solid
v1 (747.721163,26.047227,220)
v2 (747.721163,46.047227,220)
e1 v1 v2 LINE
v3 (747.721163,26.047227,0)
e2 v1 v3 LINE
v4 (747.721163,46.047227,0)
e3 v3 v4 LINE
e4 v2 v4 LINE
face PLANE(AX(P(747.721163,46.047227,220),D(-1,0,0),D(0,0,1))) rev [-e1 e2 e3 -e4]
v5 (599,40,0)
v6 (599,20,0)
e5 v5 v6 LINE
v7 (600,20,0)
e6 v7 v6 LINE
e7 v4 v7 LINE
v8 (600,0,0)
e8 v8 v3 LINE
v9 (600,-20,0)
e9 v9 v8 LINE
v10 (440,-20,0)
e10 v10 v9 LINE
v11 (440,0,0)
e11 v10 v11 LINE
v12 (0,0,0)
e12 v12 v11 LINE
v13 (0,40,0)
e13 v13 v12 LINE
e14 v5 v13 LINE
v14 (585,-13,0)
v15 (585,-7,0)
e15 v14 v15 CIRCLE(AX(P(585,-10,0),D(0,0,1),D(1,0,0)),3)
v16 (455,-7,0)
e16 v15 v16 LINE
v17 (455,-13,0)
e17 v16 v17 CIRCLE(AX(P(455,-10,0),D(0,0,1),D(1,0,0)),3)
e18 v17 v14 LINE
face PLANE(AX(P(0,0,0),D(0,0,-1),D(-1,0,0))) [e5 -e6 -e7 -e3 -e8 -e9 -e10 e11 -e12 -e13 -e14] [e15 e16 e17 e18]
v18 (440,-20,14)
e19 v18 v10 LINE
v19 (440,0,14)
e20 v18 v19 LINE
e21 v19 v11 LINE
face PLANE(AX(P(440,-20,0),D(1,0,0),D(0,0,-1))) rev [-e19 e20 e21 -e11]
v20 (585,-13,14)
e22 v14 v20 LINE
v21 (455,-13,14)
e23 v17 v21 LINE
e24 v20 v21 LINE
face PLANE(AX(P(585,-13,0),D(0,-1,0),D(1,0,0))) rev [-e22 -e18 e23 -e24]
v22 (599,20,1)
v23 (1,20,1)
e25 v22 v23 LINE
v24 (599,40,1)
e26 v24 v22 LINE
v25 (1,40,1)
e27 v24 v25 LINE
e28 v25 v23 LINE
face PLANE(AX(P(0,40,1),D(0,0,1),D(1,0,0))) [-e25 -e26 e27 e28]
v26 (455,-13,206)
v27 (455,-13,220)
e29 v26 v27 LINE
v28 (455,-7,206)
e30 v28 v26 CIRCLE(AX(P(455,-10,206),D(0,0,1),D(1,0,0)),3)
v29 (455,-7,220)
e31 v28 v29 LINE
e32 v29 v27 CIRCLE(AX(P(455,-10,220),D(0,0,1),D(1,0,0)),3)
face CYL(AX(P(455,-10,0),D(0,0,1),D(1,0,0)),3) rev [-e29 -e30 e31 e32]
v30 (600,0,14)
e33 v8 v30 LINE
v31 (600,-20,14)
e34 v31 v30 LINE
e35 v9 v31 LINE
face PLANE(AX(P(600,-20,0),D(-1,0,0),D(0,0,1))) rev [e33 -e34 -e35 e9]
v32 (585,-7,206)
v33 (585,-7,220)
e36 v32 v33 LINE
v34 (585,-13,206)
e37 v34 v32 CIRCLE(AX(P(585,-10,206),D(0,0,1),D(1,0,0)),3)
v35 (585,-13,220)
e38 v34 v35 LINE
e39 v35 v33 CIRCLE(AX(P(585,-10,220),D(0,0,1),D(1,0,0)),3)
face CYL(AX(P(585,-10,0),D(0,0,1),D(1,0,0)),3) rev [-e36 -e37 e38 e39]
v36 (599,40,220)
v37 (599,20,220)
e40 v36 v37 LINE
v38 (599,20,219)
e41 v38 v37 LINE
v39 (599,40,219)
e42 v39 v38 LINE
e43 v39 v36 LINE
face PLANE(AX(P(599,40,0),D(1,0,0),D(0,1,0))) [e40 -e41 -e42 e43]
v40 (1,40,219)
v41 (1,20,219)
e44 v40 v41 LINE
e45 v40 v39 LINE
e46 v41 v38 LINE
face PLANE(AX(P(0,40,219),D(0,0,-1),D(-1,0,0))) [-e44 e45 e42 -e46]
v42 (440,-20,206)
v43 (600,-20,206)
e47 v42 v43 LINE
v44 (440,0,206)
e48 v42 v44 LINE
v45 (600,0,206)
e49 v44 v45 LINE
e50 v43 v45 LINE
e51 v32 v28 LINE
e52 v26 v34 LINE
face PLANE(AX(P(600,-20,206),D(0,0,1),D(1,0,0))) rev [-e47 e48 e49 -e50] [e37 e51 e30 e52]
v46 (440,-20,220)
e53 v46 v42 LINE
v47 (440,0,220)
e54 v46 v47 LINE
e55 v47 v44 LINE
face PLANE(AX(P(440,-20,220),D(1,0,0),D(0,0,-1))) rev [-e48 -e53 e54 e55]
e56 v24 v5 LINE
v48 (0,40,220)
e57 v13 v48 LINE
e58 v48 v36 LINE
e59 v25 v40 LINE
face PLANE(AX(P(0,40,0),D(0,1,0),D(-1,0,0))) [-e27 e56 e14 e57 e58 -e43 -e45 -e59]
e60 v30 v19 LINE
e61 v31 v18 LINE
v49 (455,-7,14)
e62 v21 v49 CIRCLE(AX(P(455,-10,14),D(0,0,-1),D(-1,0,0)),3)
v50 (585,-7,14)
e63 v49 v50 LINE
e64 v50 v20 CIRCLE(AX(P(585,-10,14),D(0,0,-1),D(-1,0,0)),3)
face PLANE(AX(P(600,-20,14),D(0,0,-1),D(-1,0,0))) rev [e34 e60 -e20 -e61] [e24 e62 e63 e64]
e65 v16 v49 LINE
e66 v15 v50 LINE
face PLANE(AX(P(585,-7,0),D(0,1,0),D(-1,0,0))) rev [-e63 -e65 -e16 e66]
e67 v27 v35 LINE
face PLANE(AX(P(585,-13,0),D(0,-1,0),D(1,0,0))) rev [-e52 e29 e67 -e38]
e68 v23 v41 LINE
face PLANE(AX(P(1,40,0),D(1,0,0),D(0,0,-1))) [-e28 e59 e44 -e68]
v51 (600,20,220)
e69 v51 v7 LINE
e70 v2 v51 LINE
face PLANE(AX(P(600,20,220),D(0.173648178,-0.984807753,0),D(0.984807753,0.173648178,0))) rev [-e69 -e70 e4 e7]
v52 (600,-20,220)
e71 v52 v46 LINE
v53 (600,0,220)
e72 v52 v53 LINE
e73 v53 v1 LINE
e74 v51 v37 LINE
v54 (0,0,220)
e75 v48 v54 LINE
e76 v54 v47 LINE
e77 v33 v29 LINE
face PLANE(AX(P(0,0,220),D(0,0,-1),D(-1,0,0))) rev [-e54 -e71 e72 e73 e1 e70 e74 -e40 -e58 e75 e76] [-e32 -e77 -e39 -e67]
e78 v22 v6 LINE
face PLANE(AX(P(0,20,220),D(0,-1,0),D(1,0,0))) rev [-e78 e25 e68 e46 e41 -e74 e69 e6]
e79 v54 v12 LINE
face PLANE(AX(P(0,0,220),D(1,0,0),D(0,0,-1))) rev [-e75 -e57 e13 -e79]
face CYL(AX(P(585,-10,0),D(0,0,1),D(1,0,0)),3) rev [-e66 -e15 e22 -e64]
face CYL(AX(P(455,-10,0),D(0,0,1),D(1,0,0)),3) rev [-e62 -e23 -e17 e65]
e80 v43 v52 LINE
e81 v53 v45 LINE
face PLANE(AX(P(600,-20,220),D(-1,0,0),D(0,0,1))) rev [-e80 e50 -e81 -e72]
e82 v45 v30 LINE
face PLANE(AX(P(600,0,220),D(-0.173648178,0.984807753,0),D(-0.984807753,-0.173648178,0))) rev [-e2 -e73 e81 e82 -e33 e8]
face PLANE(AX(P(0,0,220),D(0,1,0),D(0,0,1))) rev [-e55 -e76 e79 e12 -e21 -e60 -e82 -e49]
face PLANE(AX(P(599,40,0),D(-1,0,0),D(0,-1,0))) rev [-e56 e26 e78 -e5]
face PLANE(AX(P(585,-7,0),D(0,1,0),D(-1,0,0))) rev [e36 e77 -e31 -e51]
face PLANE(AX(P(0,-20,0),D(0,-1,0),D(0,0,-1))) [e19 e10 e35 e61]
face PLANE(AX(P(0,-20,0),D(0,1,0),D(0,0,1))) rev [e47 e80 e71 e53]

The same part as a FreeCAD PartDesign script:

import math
import FreeCAD as App
import Part
import Sketcher
from FreeCAD import Vector
Q = App.Units.Quantity


def add_polygon(sketch, points):
    """Adds a closed chain of lines whose ends are joined by coincident constraints."""
    first, n = sketch.GeometryCount, len(points)
    for a, b in zip(points, points[1:] + points[:1]):
        sketch.addGeometry(Part.LineSegment(App.Vector(*a, 0), App.Vector(*b, 0)), False)
    for i in range(n):
        sketch.addConstraint(Sketcher.Constraint("Coincident", first + i, 2, first + (i + 1) % n, 1))

doc = App.newDocument("Part")
body = doc.addObject("PartDesign::Body", "Body")

# Sketch on XY plane
sketch1 = doc.addObject("Sketcher::SketchObject", "Sketch")
body.addObject(sketch1)
sketch1.AttachmentSupport = (doc.XY_Plane, [""])
sketch1.MapMode = "FlatFace"
add_polygon(sketch1, [(600, 0), (748, 26), (748, 46), (600, 20), (0, 20), (0, 0)])  # lines 0-5
sketch1.addConstraint([
    Sketcher.Constraint("Vertical", 1),
    Sketcher.Constraint("Horizontal", 3),
    Sketcher.Constraint("Vertical", 4),
    Sketcher.Constraint("Horizontal", 5),
    Sketcher.Constraint("Coincident", 4, 2, -1, 1),
    Sketcher.Constraint("Parallel", 0, 2),
    Sketcher.Constraint("Vertical", 2, 2, 5, 2),
    Sketcher.Constraint("DistanceX", 3, 2, 3, 1, 600.0),
    Sketcher.Constraint("DistanceY", 1, 1, 1, 2, 20.0),
    Sketcher.Constraint("Angle", 0, Q("10 deg")),
    Sketcher.Constraint("Distance", 0, 150.0),
])
pad1 = doc.addObject("PartDesign::Pad", "Pad")
body.addObject(pad1)
pad1.Profile = sketch1
pad1.Length = 220

# Sketch on XZ plane
sketch2 = doc.addObject("Sketcher::SketchObject", "Sketch001")
body.addObject(sketch2)
sketch2.AttachmentSupport = (doc.XZ_Plane, [""])
sketch2.MapMode = "FlatFace"
sketch2.AttachmentOffset = App.Placement(Vector(0, 0, -20), App.Rotation())
add_polygon(sketch2, [(1, 1), (599, 1), (599, 0), (0, 0), (0, 220), (599, 220), (599, 219), (1, 219)])  # lines 0-7
sketch2.addConstraint([
    Sketcher.Constraint("Horizontal", 0),
    Sketcher.Constraint("Vertical", 1),
    Sketcher.Constraint("Horizontal", 2),
    Sketcher.Constraint("Vertical", 3),
    Sketcher.Constraint("Horizontal", 4),
    Sketcher.Constraint("Vertical", 5),
    Sketcher.Constraint("Horizontal", 6),
    Sketcher.Constraint("Vertical", 7),
    Sketcher.Constraint("Coincident", 2, 2, -1, 1),
    Sketcher.Constraint("Vertical", 1, 2, 4, 2),
    Sketcher.Constraint("Equal", 1, 5),
    Sketcher.Constraint("DistanceX", 0, 1, 0, 2, 598.0),
    Sketcher.Constraint("DistanceX", 2, 2, 2, 1, 599.0),
    Sketcher.Constraint("DistanceY", 1, 2, 1, 1, 1.0),
    Sketcher.Constraint("DistanceY", 3, 1, 3, 2, 220.0),
])
pad2 = doc.addObject("PartDesign::Pad", "Pad001")
body.addObject(pad2)
pad2.Profile = sketch2
pad2.Length = 20
pad2.Reversed = True

# Sketch on XZ plane
sketch3 = doc.addObject("Sketcher::SketchObject", "Sketch002")
body.addObject(sketch3)
sketch3.AttachmentSupport = (doc.XZ_Plane, [""])
sketch3.MapMode = "FlatFace"
add_polygon(sketch3, [(440, 220), (440, 206), (600, 206), (600, 220)])  # lines 0-3
add_polygon(sketch3, [(440, 14), (440, 0), (600, 0), (600, 14)])  # lines 4-7
sketch3.addConstraint([
    Sketcher.Constraint("Vertical", 0),
    Sketcher.Constraint("Horizontal", 1),
    Sketcher.Constraint("Vertical", 2),
    Sketcher.Constraint("Horizontal", 3),
    Sketcher.Constraint("Vertical", 4),
    Sketcher.Constraint("Horizontal", 5),
    Sketcher.Constraint("Vertical", 6),
    Sketcher.Constraint("Horizontal", 7),
    Sketcher.Constraint("PointOnObject", 4, 2, -1),
    Sketcher.Constraint("Vertical", 3, 2, 4, 2),
    Sketcher.Constraint("Vertical", 2, 2, 5, 2),
    Sketcher.Constraint("Equal", 2, 4),
    Sketcher.Constraint("DistanceX", 1, 1, 1, 2, 160.0),
    Sketcher.Constraint("DistanceY", 0, 2, 0, 1, 14.0),
    Sketcher.Constraint("DistanceX", -1, 1, 0, 2, 440.0),
    Sketcher.Constraint("DistanceY", -1, 1, 0, 2, 206.0),
])
pad3 = doc.addObject("PartDesign::Pad", "Pad002")
body.addObject(pad3)
pad3.Profile = sketch3
pad3.Length = 20

# Sketch on XY plane
sketch4 = doc.addObject("Sketcher::SketchObject", "Sketch003")
body.addObject(sketch4)
sketch4.AttachmentSupport = (doc.XY_Plane, [""])
sketch4.MapMode = "FlatFace"
sketch4.AttachmentOffset = App.Placement(Vector(0, 0, 220), App.Rotation())
sketch4.addGeometry([
    Part.LineSegment(Vector(455, -13, 0), Vector(585, -13, 0)),
    Part.ArcOfCircle(Part.Circle(Vector(585, -10, 0), Vector(0, 0, 1), 3), math.radians(-90), math.radians(90)),
    Part.LineSegment(Vector(585, -7, 0), Vector(455, -7, 0)),
    Part.ArcOfCircle(Part.Circle(Vector(455, -10, 0), Vector(0, 0, 1), 3), math.radians(90), math.radians(270)),
], False)
sketch4.addConstraint([
    Sketcher.Constraint("Tangent", 0, 2, 1, 1),
    Sketcher.Constraint("Tangent", 1, 2, 2, 1),
    Sketcher.Constraint("Tangent", 2, 2, 3, 1),
    Sketcher.Constraint("Tangent", 3, 2, 0, 1),
    Sketcher.Constraint("Horizontal", 0),
    Sketcher.Constraint("Horizontal", 2),
    Sketcher.Constraint("Radius", 1, 3.0),
    Sketcher.Constraint("DistanceX", 0, 1, 0, 2, 130.0),
    Sketcher.Constraint("DistanceX", -1, 1, 1, 3, 585.0),
    Sketcher.Constraint("DistanceY", 1, 3, -1, 1, 10.0),
])
pocket1 = doc.addObject("PartDesign::Pocket", "Pocket")
body.addObject(pocket1)
pocket1.Profile = sketch4
pocket1.Type = "ThroughAll"

doc.recompute()
